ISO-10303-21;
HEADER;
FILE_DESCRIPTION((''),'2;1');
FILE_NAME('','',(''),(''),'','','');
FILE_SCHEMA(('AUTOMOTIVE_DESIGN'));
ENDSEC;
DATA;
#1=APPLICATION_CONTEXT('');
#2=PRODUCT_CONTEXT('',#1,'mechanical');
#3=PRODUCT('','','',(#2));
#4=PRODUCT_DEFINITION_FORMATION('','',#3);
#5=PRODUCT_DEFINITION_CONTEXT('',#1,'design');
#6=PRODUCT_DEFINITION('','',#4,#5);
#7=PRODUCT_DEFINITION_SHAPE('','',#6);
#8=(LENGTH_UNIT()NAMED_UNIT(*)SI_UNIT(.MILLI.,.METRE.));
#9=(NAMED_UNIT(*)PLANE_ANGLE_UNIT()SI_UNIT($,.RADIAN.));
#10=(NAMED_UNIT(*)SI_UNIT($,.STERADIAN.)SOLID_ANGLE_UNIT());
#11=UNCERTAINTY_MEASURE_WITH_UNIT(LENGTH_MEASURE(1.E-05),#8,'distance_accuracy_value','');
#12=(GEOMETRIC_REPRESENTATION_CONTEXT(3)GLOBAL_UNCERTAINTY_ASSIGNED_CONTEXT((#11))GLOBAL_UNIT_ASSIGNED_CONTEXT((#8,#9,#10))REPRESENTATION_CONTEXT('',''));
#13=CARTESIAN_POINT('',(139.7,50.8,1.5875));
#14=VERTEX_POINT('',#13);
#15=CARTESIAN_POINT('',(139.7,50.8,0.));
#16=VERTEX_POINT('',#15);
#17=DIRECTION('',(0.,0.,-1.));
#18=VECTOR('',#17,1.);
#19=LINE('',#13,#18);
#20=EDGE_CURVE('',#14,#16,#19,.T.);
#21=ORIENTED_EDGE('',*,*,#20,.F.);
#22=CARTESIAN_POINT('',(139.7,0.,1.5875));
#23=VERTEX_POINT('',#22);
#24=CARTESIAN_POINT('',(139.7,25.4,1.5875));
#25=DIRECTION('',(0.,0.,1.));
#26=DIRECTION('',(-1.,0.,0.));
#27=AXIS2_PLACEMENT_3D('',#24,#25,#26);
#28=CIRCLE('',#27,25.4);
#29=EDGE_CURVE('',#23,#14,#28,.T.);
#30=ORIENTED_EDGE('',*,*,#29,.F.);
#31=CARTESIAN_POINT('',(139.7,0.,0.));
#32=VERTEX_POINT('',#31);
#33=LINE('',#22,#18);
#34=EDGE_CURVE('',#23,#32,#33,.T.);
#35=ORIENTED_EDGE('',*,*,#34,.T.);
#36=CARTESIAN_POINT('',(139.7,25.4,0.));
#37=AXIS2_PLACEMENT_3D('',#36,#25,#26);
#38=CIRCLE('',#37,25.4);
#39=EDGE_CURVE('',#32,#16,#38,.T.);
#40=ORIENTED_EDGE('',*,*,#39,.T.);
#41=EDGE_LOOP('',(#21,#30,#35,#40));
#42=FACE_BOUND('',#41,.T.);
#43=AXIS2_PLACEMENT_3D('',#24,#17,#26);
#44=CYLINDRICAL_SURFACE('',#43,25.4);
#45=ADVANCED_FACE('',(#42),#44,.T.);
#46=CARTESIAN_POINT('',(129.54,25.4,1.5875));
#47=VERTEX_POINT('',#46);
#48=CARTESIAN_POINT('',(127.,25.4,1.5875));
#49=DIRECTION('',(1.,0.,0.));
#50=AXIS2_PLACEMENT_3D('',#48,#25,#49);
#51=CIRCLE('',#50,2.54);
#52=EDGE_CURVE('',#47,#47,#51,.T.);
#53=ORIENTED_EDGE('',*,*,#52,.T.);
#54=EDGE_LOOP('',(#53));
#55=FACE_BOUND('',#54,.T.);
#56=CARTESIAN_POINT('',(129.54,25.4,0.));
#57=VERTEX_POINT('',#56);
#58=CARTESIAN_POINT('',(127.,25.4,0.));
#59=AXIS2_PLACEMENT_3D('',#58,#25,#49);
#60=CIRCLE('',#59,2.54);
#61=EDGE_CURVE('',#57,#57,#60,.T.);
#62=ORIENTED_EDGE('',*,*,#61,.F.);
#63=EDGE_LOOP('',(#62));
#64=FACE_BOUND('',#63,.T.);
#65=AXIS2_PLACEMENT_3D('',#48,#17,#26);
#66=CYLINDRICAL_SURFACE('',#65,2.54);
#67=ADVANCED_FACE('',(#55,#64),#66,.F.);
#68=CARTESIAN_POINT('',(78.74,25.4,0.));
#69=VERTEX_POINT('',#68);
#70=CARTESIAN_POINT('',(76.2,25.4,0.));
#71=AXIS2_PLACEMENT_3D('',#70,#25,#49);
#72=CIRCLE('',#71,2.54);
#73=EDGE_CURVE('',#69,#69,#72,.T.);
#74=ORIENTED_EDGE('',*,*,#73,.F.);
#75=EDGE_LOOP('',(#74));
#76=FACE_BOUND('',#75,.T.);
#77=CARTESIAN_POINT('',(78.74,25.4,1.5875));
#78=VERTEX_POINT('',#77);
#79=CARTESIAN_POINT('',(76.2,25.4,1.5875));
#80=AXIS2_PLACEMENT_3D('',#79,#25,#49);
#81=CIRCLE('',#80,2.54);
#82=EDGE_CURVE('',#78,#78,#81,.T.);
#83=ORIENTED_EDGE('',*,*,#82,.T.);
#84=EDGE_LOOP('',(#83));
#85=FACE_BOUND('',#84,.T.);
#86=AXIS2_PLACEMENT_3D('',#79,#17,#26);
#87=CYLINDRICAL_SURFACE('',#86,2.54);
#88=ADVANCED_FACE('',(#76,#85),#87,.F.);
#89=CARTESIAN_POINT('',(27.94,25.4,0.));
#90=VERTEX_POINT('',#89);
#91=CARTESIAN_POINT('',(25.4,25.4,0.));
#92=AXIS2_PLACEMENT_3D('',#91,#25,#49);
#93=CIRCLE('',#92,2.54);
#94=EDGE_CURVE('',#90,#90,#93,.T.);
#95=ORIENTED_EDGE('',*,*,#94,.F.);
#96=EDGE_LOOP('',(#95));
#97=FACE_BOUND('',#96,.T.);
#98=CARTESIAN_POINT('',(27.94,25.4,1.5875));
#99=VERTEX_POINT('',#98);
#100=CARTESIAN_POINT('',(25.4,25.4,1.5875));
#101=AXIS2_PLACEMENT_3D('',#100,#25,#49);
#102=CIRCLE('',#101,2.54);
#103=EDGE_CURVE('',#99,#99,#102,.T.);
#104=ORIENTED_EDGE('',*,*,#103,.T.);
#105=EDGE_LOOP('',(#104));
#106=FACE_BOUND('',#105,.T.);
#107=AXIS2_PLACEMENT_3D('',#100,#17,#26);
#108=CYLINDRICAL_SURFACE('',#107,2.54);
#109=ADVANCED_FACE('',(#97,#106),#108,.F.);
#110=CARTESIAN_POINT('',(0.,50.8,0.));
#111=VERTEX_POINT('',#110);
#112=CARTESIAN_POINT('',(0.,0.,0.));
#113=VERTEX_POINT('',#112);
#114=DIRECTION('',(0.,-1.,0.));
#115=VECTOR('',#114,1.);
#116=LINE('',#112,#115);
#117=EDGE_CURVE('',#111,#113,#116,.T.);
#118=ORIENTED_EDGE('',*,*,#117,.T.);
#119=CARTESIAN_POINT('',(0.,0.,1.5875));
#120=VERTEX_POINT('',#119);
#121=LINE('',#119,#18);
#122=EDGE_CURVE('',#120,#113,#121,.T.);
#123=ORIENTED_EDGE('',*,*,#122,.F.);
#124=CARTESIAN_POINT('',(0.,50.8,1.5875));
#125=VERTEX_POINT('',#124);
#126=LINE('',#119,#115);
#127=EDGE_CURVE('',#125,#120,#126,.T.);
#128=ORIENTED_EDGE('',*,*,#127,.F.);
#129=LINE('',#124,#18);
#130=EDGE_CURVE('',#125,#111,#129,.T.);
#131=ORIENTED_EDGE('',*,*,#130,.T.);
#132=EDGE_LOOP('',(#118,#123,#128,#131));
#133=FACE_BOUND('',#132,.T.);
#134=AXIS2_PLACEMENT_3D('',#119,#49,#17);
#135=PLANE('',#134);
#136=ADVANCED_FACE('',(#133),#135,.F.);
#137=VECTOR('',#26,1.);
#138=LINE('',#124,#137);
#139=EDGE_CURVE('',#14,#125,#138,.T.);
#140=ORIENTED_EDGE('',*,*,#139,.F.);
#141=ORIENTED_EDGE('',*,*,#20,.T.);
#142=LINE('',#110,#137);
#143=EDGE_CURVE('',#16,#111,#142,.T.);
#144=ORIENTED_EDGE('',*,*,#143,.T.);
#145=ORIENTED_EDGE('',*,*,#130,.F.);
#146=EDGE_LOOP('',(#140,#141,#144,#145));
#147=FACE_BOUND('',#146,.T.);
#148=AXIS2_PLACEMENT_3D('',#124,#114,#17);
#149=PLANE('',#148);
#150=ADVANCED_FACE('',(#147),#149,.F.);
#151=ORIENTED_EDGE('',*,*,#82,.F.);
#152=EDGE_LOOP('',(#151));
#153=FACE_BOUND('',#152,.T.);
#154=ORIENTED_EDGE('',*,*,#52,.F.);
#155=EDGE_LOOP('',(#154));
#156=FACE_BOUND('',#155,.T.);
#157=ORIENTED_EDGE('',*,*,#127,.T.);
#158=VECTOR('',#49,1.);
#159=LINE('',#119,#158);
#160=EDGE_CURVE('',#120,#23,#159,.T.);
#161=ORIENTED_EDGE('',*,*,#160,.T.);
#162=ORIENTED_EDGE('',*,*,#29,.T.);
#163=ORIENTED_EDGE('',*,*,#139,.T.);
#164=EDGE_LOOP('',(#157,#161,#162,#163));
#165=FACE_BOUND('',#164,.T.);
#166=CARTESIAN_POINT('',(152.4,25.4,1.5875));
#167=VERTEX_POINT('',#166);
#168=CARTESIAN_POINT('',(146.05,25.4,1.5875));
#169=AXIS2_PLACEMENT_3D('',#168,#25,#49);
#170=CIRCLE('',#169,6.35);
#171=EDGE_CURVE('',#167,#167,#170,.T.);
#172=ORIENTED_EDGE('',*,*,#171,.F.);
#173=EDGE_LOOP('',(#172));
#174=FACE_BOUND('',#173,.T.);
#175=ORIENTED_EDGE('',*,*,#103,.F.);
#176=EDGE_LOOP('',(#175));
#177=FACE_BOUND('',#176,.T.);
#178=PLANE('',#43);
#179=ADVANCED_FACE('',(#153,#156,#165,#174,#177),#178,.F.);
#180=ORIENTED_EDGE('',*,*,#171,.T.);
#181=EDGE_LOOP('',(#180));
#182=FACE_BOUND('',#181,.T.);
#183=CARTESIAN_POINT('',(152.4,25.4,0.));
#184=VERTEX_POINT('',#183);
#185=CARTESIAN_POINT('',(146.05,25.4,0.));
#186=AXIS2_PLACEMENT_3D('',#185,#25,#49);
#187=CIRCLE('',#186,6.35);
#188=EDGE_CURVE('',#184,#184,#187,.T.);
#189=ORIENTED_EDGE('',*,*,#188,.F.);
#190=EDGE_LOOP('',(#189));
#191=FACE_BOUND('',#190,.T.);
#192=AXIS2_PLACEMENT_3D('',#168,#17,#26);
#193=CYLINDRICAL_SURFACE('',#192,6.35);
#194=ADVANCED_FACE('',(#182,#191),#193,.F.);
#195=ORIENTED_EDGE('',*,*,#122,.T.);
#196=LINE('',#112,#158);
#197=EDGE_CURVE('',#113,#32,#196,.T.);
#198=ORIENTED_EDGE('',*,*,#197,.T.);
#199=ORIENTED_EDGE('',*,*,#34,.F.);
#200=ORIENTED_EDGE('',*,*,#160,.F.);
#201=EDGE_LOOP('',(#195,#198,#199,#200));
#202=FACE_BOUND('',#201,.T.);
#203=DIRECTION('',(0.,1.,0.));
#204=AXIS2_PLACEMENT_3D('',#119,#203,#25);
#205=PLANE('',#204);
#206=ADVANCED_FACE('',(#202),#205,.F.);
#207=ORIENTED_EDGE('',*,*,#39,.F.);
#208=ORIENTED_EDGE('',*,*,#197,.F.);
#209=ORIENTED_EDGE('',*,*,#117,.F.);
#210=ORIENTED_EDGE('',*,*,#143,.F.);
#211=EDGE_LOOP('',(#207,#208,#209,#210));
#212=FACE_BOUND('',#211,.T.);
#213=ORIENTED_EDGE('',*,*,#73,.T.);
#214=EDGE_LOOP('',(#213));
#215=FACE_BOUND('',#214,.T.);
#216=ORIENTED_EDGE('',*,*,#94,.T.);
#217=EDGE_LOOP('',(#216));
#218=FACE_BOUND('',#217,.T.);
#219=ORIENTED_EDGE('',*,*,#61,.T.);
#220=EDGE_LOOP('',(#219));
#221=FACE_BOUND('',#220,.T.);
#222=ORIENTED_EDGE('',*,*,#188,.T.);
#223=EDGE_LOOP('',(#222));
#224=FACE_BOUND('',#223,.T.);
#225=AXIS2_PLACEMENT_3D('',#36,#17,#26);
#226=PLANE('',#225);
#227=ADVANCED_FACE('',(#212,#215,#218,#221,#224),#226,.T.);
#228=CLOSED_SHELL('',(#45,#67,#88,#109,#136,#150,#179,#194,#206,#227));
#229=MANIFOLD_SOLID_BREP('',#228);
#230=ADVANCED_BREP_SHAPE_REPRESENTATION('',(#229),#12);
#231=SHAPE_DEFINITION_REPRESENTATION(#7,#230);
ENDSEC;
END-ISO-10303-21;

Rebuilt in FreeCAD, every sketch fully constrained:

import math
import FreeCAD as App
import Part
import Sketcher

V = App.Vector
Q = App.Units.Quantity

doc = App.newDocument("Part")
body = doc.addObject("PartDesign::Body", "Body")

sketch1 = body.newObject("Sketcher::SketchObject", "Sketch")
sketch1.AttachmentSupport = (doc.getObject("XY_Plane"), [""])
sketch1.MapMode = "FlatFace"
sketch1.addGeometry([
    Part.LineSegment(V(0, 0, 0), V(139.7, 0, 0)),
    Part.ArcOfCircle(Part.Circle(V(139.7, 25.4, 0), V(0, 0, 1), 25.4), math.radians(-90), math.radians(90)),
    Part.LineSegment(V(139.7, 50.8, 0), V(0, 50.8, 0)),
    Part.LineSegment(V(0, 50.8, 0), V(0, 0, 0)),
    Part.Circle(V(25.4, 25.4, 0), V(0, 0, 1), 2.5),
    Part.Circle(V(76.2, 25.4, 0), V(0, 0, 1), 2.5),
    Part.Circle(V(127, 25.4, 0), V(0, 0, 1), 2.5),
    Part.Circle(V(146.1, 25.4, 0), V(0, 0, 1), 6.3),
], False)
sketch1.addConstraint([
    Sketcher.Constraint("Tangent", 0, 2, 1, 1),
    Sketcher.Constraint("Tangent", 1, 2, 2, 1),
    Sketcher.Constraint("Coincident", 2, 2, 3, 1),
    Sketcher.Constraint("Coincident", 3, 2, 0, 1),
    Sketcher.Constraint("Horizontal", 0),
    Sketcher.Constraint("Horizontal", 2),
    Sketcher.Constraint("Vertical", 3),
    Sketcher.Constraint("Coincident", 3, 2, -1, 1),
    Sketcher.Constraint("Equal", 4, 5),
    Sketcher.Constraint("Equal", 5, 6),
    Sketcher.Constraint("Horizontal", 1, 3, 4, 3),
    Sketcher.Constraint("Horizontal", 4, 3, 5, 3),
    Sketcher.Constraint("Horizontal", 5, 3, 6, 3),
    Sketcher.Constraint("Horizontal", 6, 3, 7, 3),
    Sketcher.Constraint("Radius", 1, Q("1 in")),
    Sketcher.Constraint("Diameter", 4, Q("0.2 in")),
    Sketcher.Constraint("Diameter", 7, Q("0.5 in")),
    Sketcher.Constraint("DistanceX", 0, 1, 0, 2, Q("5.5 in")),
    Sketcher.Constraint("DistanceX", -1, 1, 4, 3, Q("1 in")),
    Sketcher.Constraint("DistanceX", -1, 1, 5, 3, Q("3 in")),
    Sketcher.Constraint("DistanceX", -1, 1, 6, 3, Q("5 in")),
    Sketcher.Constraint("DistanceX", -1, 1, 7, 3, Q("5.75 in")),
])
pad1 = body.newObject("PartDesign::Pad", "Pad")
pad1.Profile = sketch1
pad1.Length = Q("0.0625 in")

doc.recompute()
